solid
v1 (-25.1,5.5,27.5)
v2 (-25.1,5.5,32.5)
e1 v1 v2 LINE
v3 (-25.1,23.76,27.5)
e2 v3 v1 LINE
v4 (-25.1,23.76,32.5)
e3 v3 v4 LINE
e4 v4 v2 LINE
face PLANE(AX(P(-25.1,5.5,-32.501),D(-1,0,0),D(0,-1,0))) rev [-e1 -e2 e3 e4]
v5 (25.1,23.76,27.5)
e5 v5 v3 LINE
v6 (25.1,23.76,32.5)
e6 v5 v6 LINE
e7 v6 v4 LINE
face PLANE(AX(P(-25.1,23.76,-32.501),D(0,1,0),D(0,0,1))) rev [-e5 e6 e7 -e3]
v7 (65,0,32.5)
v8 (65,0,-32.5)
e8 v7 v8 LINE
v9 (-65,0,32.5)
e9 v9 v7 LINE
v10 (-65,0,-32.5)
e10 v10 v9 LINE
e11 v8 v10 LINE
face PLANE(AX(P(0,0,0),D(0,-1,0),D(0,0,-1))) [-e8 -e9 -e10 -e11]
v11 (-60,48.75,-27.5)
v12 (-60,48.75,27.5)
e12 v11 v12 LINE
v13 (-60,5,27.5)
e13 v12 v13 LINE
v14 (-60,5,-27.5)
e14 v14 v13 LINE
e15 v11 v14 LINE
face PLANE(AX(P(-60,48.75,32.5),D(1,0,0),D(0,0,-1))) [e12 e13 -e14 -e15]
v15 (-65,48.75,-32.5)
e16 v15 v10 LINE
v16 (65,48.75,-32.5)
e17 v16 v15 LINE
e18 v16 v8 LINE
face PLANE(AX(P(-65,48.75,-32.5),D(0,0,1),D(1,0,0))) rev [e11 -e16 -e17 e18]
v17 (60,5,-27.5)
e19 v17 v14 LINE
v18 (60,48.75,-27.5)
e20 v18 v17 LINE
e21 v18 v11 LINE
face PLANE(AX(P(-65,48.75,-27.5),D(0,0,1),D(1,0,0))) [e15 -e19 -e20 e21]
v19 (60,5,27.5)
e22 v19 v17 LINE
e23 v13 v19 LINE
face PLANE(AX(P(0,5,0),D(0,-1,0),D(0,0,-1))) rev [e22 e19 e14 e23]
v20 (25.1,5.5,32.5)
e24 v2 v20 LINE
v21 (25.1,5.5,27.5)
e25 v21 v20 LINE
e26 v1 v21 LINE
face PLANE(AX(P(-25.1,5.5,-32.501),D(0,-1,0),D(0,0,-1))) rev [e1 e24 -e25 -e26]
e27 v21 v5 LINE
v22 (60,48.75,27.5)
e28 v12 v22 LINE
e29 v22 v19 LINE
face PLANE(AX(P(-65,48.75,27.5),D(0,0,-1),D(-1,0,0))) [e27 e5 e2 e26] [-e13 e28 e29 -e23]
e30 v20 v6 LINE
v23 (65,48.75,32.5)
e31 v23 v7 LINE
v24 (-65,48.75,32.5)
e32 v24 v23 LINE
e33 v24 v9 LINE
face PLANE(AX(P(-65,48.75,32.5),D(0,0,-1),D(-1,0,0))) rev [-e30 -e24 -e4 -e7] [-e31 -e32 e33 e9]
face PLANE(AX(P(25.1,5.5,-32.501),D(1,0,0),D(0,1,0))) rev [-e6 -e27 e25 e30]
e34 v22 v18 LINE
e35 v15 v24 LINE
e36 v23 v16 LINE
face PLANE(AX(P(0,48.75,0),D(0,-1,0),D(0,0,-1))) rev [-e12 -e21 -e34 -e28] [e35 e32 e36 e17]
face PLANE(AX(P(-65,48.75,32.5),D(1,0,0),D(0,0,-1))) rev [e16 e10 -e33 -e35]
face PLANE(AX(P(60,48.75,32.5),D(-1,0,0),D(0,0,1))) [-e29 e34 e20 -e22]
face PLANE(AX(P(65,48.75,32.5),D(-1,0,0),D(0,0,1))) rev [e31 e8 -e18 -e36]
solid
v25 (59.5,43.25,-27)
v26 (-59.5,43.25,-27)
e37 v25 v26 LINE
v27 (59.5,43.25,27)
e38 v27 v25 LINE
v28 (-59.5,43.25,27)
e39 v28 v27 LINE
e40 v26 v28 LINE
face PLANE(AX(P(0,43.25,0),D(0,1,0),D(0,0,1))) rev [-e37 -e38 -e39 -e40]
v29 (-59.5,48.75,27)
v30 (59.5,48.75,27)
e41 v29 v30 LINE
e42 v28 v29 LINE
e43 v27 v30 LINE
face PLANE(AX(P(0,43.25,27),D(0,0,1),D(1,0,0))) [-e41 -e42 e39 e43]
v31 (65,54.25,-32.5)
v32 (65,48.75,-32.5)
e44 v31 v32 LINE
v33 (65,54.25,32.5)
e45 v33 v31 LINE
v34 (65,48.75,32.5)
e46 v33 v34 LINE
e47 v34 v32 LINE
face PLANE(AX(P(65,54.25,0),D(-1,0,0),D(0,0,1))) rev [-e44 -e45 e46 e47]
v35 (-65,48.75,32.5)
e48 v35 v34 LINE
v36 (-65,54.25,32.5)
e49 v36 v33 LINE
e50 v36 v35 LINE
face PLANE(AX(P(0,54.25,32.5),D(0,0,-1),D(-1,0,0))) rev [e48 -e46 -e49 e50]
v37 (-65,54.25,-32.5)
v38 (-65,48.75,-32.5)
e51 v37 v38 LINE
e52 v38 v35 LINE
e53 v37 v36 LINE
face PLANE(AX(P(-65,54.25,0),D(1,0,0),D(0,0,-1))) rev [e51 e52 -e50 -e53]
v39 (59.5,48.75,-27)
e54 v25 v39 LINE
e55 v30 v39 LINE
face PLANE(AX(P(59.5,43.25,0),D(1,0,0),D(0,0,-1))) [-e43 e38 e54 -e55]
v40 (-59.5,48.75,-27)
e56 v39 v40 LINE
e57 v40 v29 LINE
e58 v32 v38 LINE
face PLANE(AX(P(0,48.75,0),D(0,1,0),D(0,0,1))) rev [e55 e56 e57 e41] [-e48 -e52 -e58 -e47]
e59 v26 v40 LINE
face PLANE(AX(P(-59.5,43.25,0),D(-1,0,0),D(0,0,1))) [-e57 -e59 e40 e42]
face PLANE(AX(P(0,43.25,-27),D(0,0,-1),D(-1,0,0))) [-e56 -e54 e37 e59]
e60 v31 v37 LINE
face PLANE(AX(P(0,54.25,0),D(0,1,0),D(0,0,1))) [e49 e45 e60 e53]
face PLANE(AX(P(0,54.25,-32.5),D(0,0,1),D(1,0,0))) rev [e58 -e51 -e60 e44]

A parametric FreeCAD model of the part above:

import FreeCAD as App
import Part
import Sketcher


def faces_at(feature, points):
    """Names of the faces that lie closest to the given points."""
    faces = feature.Shape.Faces
    near = lambda p: min(range(len(faces)), key=lambda i: faces[i].distToShape(Part.Vertex(*p))[0])
    return sorted({f"Face{near(p) + 1}" for p in points})


def add_polygon(sketch, points):
    """Adds a closed chain of lines whose ends are joined by coincident constraints."""
    first, n = sketch.GeometryCount, len(points)
    for a, b in zip(points, points[1:] + points[:1]):
        sketch.addGeometry(Part.LineSegment(App.Vector(*a, 0), App.Vector(*b, 0)), False)
    for i in range(n):
        sketch.addConstraint(Sketcher.Constraint("Coincident", first + i, 2, first + (i + 1) % n, 1))

doc = App.newDocument("Part")
params = doc.addObject("Spreadsheet::Sheet", "Params")
for row, (alias, value) in enumerate([
    ("sketch1_width", "130 mm"),
    ("sketch1_height", "65 mm"),
    ("pad1_length", "48.75 mm"),
    ("thickness_wall", "5 mm"),
    ("sketch2_width", "50.2 mm"),
    ("sketch2_height", "18.26 mm"),
    ("pocket1_length", "5 mm"),
    ("sketch3_width", "130 mm"),
    ("sketch3_height", "65 mm"),
    ("pad2_length", "5.5 mm"),
    ("sketch4_width", "119 mm"),
    ("sketch4_height", "54 mm"),
    ("pad3_length", "5.5 mm"),
], start=1):
    params.set(f"A{row}", alias)
    params.set(f"B{row}", "=" + value)
    params.setAlias(f"B{row}", alias)

body = doc.addObject("PartDesign::Body", "Body")

sketch1 = doc.addObject("Sketcher::SketchObject", "Sketch")
body.addObject(sketch1)
sketch1.AttachmentSupport = (doc.XZ_Plane, [""])
sketch1.MapMode = "FlatFace"
add_polygon(sketch1, [(-65, -32.5), (-65, 32.5), (65, 32.5), (65, -32.5)])
sketch1.addConstraint(Sketcher.Constraint("Vertical", 0))
sketch1.addConstraint(Sketcher.Constraint("Horizontal", 1))
sketch1.addConstraint(Sketcher.Constraint("Vertical", 2))
sketch1.addConstraint(Sketcher.Constraint("Horizontal", 3))
sketch1.addConstraint(Sketcher.Constraint("Symmetric", 0, 2, 2, 2, -1, 1))
sketch1.addConstraint(Sketcher.Constraint("DistanceX", 1, 1, 1, 2, 130.0))
sketch1.addConstraint(Sketcher.Constraint("DistanceY", 0, 1, 0, 2, 65.0))
sketch1.setExpression("Constraints[9]", "Params.sketch1_width")
sketch1.setExpression("Constraints[10]", "Params.sketch1_height")
pad1 = doc.addObject("PartDesign::Pad", "Pad")
body.addObject(pad1)
pad1.Profile = sketch1
pad1.setExpression("Length", "Params.pad1_length")
pad1.Reversed = True
doc.recompute()

thickness = doc.addObject("PartDesign::Thickness", "Thickness")
body.addObject(thickness)
thickness.Base = (pad1, faces_at(pad1, [(0, 48.75, 0)]))
thickness.setExpression("Value", "Params.thickness_wall")
thickness.Reversed = True
thickness.Join = "Intersection"

sketch2 = doc.addObject("Sketcher::SketchObject", "Sketch001")
body.addObject(sketch2)
sketch2.AttachmentSupport = (doc.XY_Plane, [""])
sketch2.MapMode = "FlatFace"
sketch2.AttachmentOffset = App.Placement(App.Vector(0, 0, 32.5), App.Rotation())
add_polygon(sketch2, [(-25.1, 23.76), (-25.1, 5.5), (25.1, 5.5), (25.1, 23.76)])
sketch2.addConstraint(Sketcher.Constraint("Vertical", 0))
sketch2.addConstraint(Sketcher.Constraint("Horizontal", 1))
sketch2.addConstraint(Sketcher.Constraint("Vertical", 2))
sketch2.addConstraint(Sketcher.Constraint("Horizontal", 3))
sketch2.addConstraint(Sketcher.Constraint("DistanceX", 1, 1, 1, 2, 50.2))
sketch2.addConstraint(Sketcher.Constraint("DistanceY", 0, 2, 0, 1, 18.26))
sketch2.addConstraint(Sketcher.Constraint("DistanceX", 0, 2, -1, 1, 25.1))
sketch2.addConstraint(Sketcher.Constraint("DistanceY", -1, 1, 0, 2, 5.5))
sketch2.setExpression("Constraints[8]", "Params.sketch2_width")
sketch2.setExpression("Constraints[9]", "Params.sketch2_height")
pocket1 = doc.addObject("PartDesign::Pocket", "Pocket")
body.addObject(pocket1)
pocket1.Profile = sketch2
pocket1.setExpression("Length", "Params.pocket1_length")
body2 = doc.addObject("PartDesign::Body", "Body001")

sketch3 = doc.addObject("Sketcher::SketchObject", "Sketch002")
body2.addObject(sketch3)
sketch3.AttachmentSupport = (doc.getObject("XZ_Plane001"), [""])
sketch3.MapMode = "FlatFace"
sketch3.AttachmentOffset = App.Placement(App.Vector(0, 0, -48.75), App.Rotation())
add_polygon(sketch3, [(-65, -32.5), (-65, 32.5), (65, 32.5), (65, -32.5)])
sketch3.addConstraint(Sketcher.Constraint("Vertical", 0))
sketch3.addConstraint(Sketcher.Constraint("Horizontal", 1))
sketch3.addConstraint(Sketcher.Constraint("Vertical", 2))
sketch3.addConstraint(Sketcher.Constraint("Horizontal", 3))
sketch3.addConstraint(Sketcher.Constraint("Symmetric", 0, 2, 2, 2, -1, 1))
sketch3.addConstraint(Sketcher.Constraint("DistanceX", 1, 1, 1, 2, 130.0))
sketch3.addConstraint(Sketcher.Constraint("DistanceY", 0, 1, 0, 2, 65.0))
sketch3.setExpression("Constraints[9]", "Params.sketch3_width")
sketch3.setExpression("Constraints[10]", "Params.sketch3_height")
pad2 = doc.addObject("PartDesign::Pad", "Pad001")
body2.addObject(pad2)
pad2.Profile = sketch3
pad2.setExpression("Length", "Params.pad2_length")
pad2.Reversed = True

sketch4 = doc.addObject("Sketcher::SketchObject", "Sketch003")
body2.addObject(sketch4)
sketch4.AttachmentSupport = (doc.getObject("XZ_Plane001"), [""])
sketch4.MapMode = "FlatFace"
sketch4.AttachmentOffset = App.Placement(App.Vector(0, 0, -48.75), App.Rotation())
add_polygon(sketch4, [(-59.5, -27), (-59.5, 27), (59.5, 27), (59.5, -27)])
sketch4.addConstraint(Sketcher.Constraint("Vertical", 0))
sketch4.addConstraint(Sketcher.Constraint("Horizontal", 1))
sketch4.addConstraint(Sketcher.Constraint("Vertical", 2))
sketch4.addConstraint(Sketcher.Constraint("Horizontal", 3))
sketch4.addConstraint(Sketcher.Constraint("Symmetric", 0, 2, 2, 2, -1, 1))
sketch4.addConstraint(Sketcher.Constraint("DistanceX", 1, 1, 1, 2, 119.0))
sketch4.addConstraint(Sketcher.Constraint("DistanceY", 0, 1, 0, 2, 54.0))
sketch4.setExpression("Constraints[9]", "Params.sketch4_width")
sketch4.setExpression("Constraints[10]", "Params.sketch4_height")
pad3 = doc.addObject("PartDesign::Pad", "Pad002")
body2.addObject(pad3)
pad3.Profile = sketch4
pad3.setExpression("Length", "Params.pad3_length")

doc.recompute()
